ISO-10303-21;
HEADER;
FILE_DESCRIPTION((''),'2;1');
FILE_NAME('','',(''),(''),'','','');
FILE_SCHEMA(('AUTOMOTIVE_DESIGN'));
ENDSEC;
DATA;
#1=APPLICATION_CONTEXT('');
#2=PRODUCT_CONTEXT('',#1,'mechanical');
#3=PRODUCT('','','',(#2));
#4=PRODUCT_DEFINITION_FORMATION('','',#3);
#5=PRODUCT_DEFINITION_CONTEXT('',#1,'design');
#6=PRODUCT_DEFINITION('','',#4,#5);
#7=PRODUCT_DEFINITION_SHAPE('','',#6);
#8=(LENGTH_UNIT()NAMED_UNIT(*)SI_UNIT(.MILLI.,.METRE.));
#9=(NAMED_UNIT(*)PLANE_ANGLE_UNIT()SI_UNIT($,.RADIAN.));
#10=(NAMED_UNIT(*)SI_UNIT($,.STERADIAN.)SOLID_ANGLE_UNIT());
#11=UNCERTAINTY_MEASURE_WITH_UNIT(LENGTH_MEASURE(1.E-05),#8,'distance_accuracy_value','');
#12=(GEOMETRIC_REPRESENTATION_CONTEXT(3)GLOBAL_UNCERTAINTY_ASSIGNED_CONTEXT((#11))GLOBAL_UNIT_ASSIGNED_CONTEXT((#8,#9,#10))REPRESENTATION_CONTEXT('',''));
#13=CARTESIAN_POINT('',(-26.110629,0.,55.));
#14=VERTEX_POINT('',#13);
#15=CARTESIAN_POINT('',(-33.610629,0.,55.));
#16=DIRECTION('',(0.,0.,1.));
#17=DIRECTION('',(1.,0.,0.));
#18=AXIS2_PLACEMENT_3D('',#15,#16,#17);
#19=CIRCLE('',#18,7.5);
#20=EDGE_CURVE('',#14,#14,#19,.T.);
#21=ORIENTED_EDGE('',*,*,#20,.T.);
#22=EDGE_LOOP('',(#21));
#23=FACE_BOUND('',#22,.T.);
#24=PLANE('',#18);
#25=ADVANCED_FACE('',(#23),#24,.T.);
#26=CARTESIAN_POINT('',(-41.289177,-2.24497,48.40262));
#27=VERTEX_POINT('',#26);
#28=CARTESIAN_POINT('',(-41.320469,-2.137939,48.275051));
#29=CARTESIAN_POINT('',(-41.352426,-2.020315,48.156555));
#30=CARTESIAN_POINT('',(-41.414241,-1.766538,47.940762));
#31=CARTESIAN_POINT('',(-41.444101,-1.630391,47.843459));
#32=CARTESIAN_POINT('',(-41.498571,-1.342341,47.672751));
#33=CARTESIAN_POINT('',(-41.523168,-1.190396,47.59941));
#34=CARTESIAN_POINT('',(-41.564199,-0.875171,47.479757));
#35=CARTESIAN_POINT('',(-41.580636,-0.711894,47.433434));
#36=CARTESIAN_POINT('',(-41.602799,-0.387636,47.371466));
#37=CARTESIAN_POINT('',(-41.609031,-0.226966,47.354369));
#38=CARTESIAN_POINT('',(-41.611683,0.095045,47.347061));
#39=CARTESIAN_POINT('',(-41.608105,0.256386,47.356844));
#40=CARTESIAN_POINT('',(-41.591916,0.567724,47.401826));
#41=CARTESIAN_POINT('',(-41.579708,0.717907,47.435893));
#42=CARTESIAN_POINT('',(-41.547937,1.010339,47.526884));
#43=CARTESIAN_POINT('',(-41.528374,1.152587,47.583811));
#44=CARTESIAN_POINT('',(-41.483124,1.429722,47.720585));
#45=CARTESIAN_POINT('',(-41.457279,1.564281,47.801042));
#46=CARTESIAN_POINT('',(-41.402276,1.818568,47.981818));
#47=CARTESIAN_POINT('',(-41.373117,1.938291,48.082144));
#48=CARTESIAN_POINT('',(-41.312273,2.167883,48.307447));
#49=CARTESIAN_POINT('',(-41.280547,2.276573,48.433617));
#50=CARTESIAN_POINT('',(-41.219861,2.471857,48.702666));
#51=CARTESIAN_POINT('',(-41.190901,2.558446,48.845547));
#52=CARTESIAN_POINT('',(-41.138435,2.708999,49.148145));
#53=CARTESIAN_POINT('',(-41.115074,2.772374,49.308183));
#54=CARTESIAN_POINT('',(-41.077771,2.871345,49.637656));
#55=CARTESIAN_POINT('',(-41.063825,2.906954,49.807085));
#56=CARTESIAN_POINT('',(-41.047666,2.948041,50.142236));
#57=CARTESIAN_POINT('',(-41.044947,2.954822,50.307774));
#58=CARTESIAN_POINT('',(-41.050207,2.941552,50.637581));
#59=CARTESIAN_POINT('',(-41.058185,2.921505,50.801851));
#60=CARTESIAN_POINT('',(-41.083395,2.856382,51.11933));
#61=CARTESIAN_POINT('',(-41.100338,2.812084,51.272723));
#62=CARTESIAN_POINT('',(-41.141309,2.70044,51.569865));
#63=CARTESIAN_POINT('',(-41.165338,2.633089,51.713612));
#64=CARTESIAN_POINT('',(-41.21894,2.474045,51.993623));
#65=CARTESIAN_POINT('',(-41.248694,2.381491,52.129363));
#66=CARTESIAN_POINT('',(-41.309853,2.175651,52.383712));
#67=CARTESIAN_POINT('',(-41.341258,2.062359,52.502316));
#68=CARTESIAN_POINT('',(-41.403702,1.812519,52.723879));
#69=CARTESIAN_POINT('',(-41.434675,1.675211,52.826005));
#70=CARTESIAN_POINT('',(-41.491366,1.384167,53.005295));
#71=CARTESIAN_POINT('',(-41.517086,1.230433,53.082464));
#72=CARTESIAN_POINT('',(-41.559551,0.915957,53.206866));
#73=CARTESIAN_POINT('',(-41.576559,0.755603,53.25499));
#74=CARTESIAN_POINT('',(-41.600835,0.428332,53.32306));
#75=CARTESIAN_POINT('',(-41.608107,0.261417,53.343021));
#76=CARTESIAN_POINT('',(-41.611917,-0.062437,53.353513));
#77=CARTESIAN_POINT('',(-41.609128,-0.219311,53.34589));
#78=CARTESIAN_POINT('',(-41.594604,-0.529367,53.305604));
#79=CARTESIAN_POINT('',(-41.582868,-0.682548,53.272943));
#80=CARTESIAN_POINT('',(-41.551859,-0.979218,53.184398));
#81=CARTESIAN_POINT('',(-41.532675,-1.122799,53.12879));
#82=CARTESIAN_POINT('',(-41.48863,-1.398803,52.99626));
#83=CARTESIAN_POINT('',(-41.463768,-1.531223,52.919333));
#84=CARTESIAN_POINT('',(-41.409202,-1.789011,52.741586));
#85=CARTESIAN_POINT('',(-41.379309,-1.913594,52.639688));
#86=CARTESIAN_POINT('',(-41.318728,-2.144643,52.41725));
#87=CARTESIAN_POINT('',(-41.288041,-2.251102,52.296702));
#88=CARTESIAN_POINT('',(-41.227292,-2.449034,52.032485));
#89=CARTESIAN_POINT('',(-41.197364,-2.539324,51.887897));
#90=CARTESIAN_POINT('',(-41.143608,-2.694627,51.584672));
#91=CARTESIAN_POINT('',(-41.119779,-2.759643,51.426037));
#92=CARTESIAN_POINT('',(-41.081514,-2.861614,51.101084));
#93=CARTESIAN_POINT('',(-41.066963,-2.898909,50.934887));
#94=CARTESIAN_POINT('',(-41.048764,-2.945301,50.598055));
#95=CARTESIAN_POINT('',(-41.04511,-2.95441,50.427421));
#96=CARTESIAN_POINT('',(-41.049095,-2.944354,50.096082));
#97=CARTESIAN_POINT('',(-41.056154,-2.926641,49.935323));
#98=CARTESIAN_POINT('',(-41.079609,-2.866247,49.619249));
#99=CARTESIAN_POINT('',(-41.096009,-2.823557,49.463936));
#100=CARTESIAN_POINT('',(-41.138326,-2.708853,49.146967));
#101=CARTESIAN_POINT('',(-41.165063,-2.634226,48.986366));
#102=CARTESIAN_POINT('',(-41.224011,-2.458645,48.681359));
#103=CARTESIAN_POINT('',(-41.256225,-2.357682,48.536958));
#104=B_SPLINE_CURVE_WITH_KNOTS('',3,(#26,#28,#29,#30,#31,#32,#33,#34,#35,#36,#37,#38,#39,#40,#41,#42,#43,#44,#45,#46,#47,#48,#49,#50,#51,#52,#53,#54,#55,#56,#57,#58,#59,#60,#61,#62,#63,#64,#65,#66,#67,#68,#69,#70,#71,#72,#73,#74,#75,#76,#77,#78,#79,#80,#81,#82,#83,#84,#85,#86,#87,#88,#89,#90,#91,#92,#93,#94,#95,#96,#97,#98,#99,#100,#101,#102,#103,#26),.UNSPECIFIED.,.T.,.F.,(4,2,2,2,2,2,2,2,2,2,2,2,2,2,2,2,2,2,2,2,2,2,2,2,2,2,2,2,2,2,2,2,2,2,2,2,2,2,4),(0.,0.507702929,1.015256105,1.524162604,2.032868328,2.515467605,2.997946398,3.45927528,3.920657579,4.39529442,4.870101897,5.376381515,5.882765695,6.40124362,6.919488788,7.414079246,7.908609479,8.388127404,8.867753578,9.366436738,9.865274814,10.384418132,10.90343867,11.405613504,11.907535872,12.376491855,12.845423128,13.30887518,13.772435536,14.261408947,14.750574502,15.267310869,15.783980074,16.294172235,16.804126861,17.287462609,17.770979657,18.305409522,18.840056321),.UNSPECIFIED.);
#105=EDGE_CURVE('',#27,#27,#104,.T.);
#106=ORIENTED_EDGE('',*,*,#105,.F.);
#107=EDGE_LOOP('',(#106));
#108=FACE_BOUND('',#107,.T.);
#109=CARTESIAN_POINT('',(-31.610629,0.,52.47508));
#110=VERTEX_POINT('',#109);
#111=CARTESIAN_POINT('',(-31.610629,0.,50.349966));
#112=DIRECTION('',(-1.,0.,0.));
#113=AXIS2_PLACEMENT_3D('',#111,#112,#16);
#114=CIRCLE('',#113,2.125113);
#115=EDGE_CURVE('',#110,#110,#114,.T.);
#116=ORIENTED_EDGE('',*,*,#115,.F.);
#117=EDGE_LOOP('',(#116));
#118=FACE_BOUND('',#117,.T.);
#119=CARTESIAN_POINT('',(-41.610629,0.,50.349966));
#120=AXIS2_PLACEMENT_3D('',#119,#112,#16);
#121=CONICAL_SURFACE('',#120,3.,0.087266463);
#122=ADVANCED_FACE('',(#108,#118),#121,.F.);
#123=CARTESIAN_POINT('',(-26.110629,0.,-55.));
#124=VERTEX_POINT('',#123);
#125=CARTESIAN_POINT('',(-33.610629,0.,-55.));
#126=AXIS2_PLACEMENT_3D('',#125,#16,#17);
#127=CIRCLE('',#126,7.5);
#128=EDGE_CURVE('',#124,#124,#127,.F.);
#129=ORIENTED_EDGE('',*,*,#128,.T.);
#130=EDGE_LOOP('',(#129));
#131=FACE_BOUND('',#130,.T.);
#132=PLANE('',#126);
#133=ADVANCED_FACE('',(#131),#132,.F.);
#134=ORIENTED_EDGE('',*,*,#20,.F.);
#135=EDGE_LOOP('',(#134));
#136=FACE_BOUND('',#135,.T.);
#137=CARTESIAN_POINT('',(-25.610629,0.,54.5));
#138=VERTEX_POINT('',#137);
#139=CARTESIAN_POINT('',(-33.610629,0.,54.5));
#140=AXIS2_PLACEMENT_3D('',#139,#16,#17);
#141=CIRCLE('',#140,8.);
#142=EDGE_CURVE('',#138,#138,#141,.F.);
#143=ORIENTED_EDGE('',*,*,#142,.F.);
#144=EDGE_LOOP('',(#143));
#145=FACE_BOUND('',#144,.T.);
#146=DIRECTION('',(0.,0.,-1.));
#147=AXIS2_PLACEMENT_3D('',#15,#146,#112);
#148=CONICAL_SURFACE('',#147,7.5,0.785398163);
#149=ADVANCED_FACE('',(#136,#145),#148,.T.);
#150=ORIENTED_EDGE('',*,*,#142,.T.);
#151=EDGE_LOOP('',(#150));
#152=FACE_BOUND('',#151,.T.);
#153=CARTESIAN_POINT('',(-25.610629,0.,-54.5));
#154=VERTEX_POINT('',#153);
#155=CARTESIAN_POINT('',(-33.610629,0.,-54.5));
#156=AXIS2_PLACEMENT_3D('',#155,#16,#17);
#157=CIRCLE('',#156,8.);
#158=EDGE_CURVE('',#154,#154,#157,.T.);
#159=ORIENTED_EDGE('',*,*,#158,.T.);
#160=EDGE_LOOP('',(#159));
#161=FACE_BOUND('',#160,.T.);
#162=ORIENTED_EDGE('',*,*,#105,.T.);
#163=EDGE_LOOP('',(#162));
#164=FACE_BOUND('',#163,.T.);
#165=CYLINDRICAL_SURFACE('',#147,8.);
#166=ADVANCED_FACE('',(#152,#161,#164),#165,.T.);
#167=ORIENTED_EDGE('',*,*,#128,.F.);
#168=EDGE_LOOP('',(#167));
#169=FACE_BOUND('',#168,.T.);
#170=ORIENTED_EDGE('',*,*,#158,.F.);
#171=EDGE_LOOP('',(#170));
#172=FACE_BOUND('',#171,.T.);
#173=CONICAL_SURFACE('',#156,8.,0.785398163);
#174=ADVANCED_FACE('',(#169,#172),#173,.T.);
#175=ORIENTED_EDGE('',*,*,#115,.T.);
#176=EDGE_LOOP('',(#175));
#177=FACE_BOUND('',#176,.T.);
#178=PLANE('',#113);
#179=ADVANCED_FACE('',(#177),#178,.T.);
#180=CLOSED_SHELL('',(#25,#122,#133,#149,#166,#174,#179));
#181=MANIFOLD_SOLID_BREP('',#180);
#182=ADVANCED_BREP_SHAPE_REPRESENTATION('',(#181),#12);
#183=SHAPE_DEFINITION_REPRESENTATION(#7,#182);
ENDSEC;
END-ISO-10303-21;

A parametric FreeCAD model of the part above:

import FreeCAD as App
import Part
import Sketcher

V = App.Vector
Q = App.Units.Quantity


def edges_at(feature, points):
    """Names of the edges that pass closest to the given points."""
    edges = feature.Shape.Edges
    near = lambda p: min(range(len(edges)), key=lambda i: edges[i].distToShape(Part.Vertex(*p))[0])
    return sorted({f"Edge{near(p) + 1}" for p in points})

doc = App.newDocument("Part")
body = doc.addObject("PartDesign::Body", "Body")

sketch1 = body.newObject("Sketcher::SketchObject", "Sketch")
sketch1.AttachmentSupport = (doc.getObject("XY_Plane"), [""])
sketch1.MapMode = "FlatFace"
sketch1.addGeometry(Part.Circle(V(-34, 0, 0), V(0, 0, 1), 8), False)
sketch1.addConstraint(Sketcher.Constraint("PointOnObject", 0, 3, -1))
sketch1.addConstraint(Sketcher.Constraint("Diameter", 0, Q("16 mm")))
sketch1.addConstraint(Sketcher.Constraint("DistanceX", 0, 3, -1, 1, Q("33.610629 mm")))
pad1 = body.newObject("PartDesign::Pad", "Pad")
pad1.Profile = sketch1
pad1.Length = 110
pad1.Midplane = True
doc.recompute()

chamfer = body.newObject("PartDesign::Chamfer", "Chamfer")
chamfer.Base = (pad1, edges_at(pad1, [(-41.611, 0, -55), (-41.611, 0, 55)]))
chamfer.Size = 0.5

sketch2 = body.newObject("Sketcher::SketchObject", "Sketch001")
sketch2.AttachmentSupport = (doc.getObject("YZ_Plane"), [""])
sketch2.MapMode = "FlatFace"
sketch2.AttachmentOffset = App.Placement(V(0, 0, -41.610629), App.Rotation())
sketch2.addGeometry(Part.Circle(V(0, 50.3, 0), V(0, 0, 1), 3), False)
sketch2.addConstraint(Sketcher.Constraint("PointOnObject", 0, 3, -2))
sketch2.addConstraint(Sketcher.Constraint("Diameter", 0, Q("6 mm")))
sketch2.addConstraint(Sketcher.Constraint("DistanceY", -1, 1, 0, 3, Q("50.349966 mm")))
pocket1 = body.newObject("PartDesign::Pocket", "Pocket")
pocket1.Profile = sketch2
pocket1.Length = 10
pocket1.Reversed = True
pocket1.TaperAngle = -5

doc.recompute()
